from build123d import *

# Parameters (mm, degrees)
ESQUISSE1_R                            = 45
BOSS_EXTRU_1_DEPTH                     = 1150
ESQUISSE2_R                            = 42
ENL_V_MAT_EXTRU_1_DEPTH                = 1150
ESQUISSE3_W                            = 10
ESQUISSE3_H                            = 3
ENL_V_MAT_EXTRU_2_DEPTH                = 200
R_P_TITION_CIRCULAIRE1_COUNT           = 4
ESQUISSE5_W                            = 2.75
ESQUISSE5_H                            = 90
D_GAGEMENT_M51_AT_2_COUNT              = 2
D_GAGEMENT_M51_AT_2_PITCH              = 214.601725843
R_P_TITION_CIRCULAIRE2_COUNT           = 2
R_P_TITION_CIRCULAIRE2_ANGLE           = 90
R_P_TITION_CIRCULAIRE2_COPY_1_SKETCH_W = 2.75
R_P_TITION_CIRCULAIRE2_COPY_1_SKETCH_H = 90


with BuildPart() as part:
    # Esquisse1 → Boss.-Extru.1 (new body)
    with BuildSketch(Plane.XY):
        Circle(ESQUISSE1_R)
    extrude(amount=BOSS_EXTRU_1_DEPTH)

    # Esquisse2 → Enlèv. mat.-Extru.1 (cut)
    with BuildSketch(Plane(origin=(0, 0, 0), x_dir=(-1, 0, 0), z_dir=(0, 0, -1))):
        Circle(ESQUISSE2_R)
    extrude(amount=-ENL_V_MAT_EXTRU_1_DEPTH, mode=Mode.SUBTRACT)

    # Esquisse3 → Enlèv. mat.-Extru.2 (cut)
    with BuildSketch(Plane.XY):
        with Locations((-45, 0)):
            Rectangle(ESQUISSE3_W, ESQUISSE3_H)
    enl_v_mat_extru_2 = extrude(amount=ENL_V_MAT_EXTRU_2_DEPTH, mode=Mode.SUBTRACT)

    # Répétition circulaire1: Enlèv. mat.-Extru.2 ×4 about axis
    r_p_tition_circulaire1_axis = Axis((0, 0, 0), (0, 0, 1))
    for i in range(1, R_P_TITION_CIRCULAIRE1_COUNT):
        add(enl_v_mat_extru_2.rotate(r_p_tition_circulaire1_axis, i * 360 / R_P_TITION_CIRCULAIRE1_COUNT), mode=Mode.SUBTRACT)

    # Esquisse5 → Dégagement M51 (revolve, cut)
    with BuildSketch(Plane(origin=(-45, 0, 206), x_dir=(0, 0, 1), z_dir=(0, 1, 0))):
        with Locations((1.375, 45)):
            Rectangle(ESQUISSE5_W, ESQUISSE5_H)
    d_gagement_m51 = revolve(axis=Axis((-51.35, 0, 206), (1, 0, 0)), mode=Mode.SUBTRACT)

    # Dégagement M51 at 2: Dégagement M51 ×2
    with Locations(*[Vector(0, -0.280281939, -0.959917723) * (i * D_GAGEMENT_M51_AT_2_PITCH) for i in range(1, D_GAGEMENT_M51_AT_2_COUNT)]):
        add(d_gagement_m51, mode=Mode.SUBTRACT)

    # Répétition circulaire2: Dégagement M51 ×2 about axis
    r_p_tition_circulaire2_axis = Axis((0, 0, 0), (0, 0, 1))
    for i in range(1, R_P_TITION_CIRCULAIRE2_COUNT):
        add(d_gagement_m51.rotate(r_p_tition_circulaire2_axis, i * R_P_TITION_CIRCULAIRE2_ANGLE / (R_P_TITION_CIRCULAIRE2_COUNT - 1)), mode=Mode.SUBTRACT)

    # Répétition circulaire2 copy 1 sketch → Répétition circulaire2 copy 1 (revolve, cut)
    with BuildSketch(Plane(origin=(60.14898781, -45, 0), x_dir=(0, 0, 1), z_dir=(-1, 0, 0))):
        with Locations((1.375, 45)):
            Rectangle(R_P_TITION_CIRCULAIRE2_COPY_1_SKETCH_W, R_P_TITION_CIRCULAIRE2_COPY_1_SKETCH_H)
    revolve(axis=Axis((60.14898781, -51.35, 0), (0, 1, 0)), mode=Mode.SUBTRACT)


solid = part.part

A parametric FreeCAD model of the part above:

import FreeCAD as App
import Part
import Sketcher
from FreeCAD import Vector
Q = App.Units.Quantity


def add_polygon(sketch, points):
    """Adds a closed chain of lines whose ends are joined by coincident constraints."""
    first, n = sketch.GeometryCount, len(points)
    for a, b in zip(points, points[1:] + points[:1]):
        sketch.addGeometry(Part.LineSegment(App.Vector(*a, 0), App.Vector(*b, 0)), False)
    for i in range(n):
        sketch.addConstraint(Sketcher.Constraint("Coincident", first + i, 2, first + (i + 1) % n, 1))

doc = App.newDocument("Part")
body = doc.addObject("PartDesign::Body", "Body")

# Sketch on XY plane
sketch1 = doc.addObject("Sketcher::SketchObject", "Sketch")
body.addObject(sketch1)
sketch1.AttachmentSupport = (doc.XY_Plane, [""])
sketch1.MapMode = "FlatFace"
sketch1.addGeometry(Part.Circle(Vector(0, 0, 0), Vector(0, 0, 1), 45), False)
sketch1.addConstraint(Sketcher.Constraint("Coincident", 0, 3, -1, 1))
sketch1.addConstraint(Sketcher.Constraint("Diameter", 0, Q("90 mm")))
pad1 = doc.addObject("PartDesign::Pad", "Pad")
body.addObject(pad1)
pad1.Profile = sketch1
pad1.Length = 1150

# Sketch on XY plane
sketch2 = doc.addObject("Sketcher::SketchObject", "Sketch001")
body.addObject(sketch2)
sketch2.AttachmentSupport = (doc.XY_Plane, [""])
sketch2.MapMode = "FlatFace"
sketch2.addGeometry(Part.Circle(Vector(0, 0, 0), Vector(0, 0, 1), 42), False)
sketch2.addConstraint(Sketcher.Constraint("Coincident", 0, 3, -1, 1))
sketch2.addConstraint(Sketcher.Constraint("Diameter", 0, Q("84 mm")))
pocket1 = doc.addObject("PartDesign::Pocket", "Pocket")
body.addObject(pocket1)
pocket1.Profile = sketch2
pocket1.Length = 1150
pocket1.Reversed = True

# Sketch on XY plane
sketch3 = doc.addObject("Sketcher::SketchObject", "Sketch002")
body.addObject(sketch3)
sketch3.AttachmentSupport = (doc.XY_Plane, [""])
sketch3.MapMode = "FlatFace"
add_polygon(sketch3, [(-50, 1.5), (-50, -1.5), (-40, -1.5), (-40, 1.5)])  # lines 0-3
sketch3.addConstraint(Sketcher.Constraint("Vertical", 0))
sketch3.addConstraint(Sketcher.Constraint("Horizontal", 1))
sketch3.addConstraint(Sketcher.Constraint("Vertical", 2))
sketch3.addConstraint(Sketcher.Constraint("Horizontal", 3))
sketch3.addConstraint(Sketcher.Constraint("DistanceX", 1, 1, 1, 2, Q("10 mm")))
sketch3.addConstraint(Sketcher.Constraint("DistanceY", 0, 2, 0, 1, Q("3 mm")))
sketch3.addConstraint(Sketcher.Constraint("DistanceX", 0, 2, -1, 1, Q("50 mm")))
sketch3.addConstraint(Sketcher.Constraint("DistanceY", 0, 2, -1, 1, Q("1.5 mm")))
pocket2 = doc.addObject("PartDesign::Pocket", "Pocket001")
body.addObject(pocket2)
pocket2.Profile = sketch3
pocket2.Length = 200
pocket2.Reversed = True
doc.recompute()

polarpattern = doc.addObject("PartDesign::PolarPattern", "PolarPattern")
body.addObject(polarpattern)
polarpattern.Originals = [pocket2]
polarpattern.Axis = (doc.Z_Axis, [""])
polarpattern.Angle = 360
polarpattern.Occurrences = 4
body.Tip = polarpattern

# Sketch on XZ plane
sketch4 = doc.addObject("Sketcher::SketchObject", "Sketch003")
body.addObject(sketch4)
sketch4.AttachmentSupport = (doc.XZ_Plane, [""])
sketch4.MapMode = "FlatFace"
add_polygon(sketch4, [(45, 206), (-45, 206), (-45, 208.8), (45, 208.8)])  # lines 0-3
sketch4.addGeometry(Part.LineSegment(Vector(-45, 206, 0), Vector(45, 206, 0)), True)  # axis
sketch4.addConstraint(Sketcher.Constraint("Horizontal", 0))
sketch4.addConstraint(Sketcher.Constraint("Vertical", 1))
sketch4.addConstraint(Sketcher.Constraint("Horizontal", 2))
sketch4.addConstraint(Sketcher.Constraint("Vertical", 3))
sketch4.addConstraint(Sketcher.Constraint("Horizontal", 4))
sketch4.addConstraint(Sketcher.Constraint("Coincident", 4, 1, 0, 2))
sketch4.addConstraint(Sketcher.Constraint("Vertical", 2, 2, 4, 2))
sketch4.addConstraint(Sketcher.Constraint("DistanceX", 0, 2, 0, 1, Q("90 mm")))
sketch4.addConstraint(Sketcher.Constraint("DistanceX", 0, 2, -1, 1, Q("45 mm")))
sketch4.addConstraint(Sketcher.Constraint("DistanceY", -1, 1, 0, 2, Q("206 mm")))
sketch4.addConstraint(Sketcher.Constraint("DistanceY", 1, 1, 1, 2, Q("2.75 mm")))
groove = doc.addObject("PartDesign::Groove", "Groove")
body.addObject(groove)
groove.Profile = sketch4
groove.ReferenceAxis = (sketch4, ["Axis0"])
groove.Angle = 360
doc.recompute()

datumline = doc.addObject("PartDesign::Line", "DatumLine")
body.addObject(datumline)
datumline.Placement = App.Placement(Vector(0, 0, 0), App.Rotation(Vector(0, 0, 1), Vector(0, -0.280281939, -0.959917723)))
linearpattern = doc.addObject("PartDesign::LinearPattern", "LinearPattern")
body.addObject(linearpattern)
linearpattern.Originals = [groove]
linearpattern.Direction = (datumline, [""])
linearpattern.Mode = "offset"
linearpattern.Offset = 214.601726
linearpattern.Occurrences = 2
body.Tip = linearpattern
doc.recompute()

polarpattern2 = doc.addObject("PartDesign::PolarPattern", "PolarPattern001")
body.addObject(polarpattern2)
polarpattern2.Originals = [groove]
polarpattern2.Axis = (doc.Z_Axis, [""])
polarpattern2.Angle = 90
polarpattern2.Occurrences = 2
body.Tip = polarpattern2

# Sketch on YZ plane
sketch5 = doc.addObject("Sketcher::SketchObject", "Sketch004")
body.addObject(sketch5)
sketch5.AttachmentSupport = (doc.YZ_Plane, [""])
sketch5.MapMode = "FlatFace"
sketch5.AttachmentOffset = App.Placement(Vector(0, 0, 60.148988), App.Rotation())
add_polygon(sketch5, [(45, 0), (-45, 0), (-45, 2.8), (45, 2.8)])  # lines 0-3
sketch5.addConstraint(Sketcher.Constraint("Horizontal", 0))
sketch5.addConstraint(Sketcher.Constraint("Vertical", 1))
sketch5.addConstraint(Sketcher.Constraint("Horizontal", 2))
sketch5.addConstraint(Sketcher.Constraint("Vertical", 3))
sketch5.addConstraint(Sketcher.Constraint("Symmetric", 0, 2, 3, 2, -1, 1))
sketch5.addConstraint(Sketcher.Constraint("DistanceX", 0, 2, 0, 1, Q("90 mm")))
sketch5.addConstraint(Sketcher.Constraint("DistanceY", 1, 1, 1, 2, Q("2.75 mm")))
groove2 = doc.addObject("PartDesign::Groove", "Groove001")
body.addObject(groove2)
groove2.Profile = sketch5
groove2.ReferenceAxis = (sketch5, ["H_Axis"])
groove2.Angle = 360

doc.recompute()
